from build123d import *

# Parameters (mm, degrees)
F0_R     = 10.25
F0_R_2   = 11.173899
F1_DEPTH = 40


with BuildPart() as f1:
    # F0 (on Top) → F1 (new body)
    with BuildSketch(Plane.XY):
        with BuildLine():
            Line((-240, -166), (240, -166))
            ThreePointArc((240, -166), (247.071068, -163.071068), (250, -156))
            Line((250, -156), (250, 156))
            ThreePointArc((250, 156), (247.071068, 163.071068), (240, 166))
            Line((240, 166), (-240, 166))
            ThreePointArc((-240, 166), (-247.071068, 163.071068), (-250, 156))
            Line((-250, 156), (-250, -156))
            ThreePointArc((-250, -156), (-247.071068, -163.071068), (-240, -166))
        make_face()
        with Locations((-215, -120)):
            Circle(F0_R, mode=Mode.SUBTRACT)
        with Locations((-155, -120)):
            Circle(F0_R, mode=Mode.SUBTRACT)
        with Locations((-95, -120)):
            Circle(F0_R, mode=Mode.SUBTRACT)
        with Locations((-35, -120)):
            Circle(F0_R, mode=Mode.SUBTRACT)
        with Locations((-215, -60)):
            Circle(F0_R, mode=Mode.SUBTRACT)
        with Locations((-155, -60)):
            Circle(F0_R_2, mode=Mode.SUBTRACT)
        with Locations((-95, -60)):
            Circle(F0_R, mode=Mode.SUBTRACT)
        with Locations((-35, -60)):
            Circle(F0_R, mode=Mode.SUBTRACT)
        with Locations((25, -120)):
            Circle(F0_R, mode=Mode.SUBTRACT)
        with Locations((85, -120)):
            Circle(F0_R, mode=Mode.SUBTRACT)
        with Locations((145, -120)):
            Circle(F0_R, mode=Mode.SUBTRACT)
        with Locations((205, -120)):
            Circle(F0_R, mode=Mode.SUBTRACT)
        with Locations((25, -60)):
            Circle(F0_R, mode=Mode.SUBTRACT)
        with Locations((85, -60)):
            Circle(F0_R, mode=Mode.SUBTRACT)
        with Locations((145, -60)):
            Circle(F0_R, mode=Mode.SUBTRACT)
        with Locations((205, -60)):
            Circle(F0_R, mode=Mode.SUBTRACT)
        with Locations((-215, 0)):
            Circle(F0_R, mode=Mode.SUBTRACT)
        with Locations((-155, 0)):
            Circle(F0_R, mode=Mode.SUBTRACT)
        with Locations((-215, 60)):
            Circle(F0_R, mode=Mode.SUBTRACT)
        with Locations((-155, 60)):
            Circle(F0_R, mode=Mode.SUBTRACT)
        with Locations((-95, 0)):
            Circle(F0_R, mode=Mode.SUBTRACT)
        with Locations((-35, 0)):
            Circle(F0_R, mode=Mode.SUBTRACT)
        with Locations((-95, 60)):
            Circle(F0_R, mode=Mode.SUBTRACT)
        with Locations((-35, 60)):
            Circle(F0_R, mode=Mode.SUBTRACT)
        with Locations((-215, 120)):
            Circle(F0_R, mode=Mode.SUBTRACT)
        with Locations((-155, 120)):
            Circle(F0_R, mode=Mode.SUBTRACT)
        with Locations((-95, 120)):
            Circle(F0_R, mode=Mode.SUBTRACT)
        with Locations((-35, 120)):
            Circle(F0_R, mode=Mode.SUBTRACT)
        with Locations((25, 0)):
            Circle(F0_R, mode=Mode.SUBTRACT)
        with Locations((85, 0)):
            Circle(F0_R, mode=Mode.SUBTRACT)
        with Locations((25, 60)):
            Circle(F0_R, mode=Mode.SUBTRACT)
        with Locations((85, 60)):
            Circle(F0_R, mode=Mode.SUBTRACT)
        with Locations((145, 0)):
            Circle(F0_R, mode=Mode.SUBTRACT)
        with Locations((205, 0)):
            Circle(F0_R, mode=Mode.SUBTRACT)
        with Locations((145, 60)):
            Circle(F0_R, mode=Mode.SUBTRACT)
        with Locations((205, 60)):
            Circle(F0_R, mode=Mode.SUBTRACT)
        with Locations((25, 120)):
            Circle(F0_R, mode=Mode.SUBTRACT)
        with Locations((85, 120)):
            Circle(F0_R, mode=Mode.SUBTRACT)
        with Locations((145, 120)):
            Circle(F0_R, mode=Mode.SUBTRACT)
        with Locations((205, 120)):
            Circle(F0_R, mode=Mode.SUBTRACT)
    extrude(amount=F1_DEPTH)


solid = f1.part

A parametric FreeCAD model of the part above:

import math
import FreeCAD as App
import Part
import Sketcher
from FreeCAD import Vector
Q = App.Units.Quantity

doc = App.newDocument("Part")
body = doc.addObject("PartDesign::Body", "Body")

sketch1 = body.newObject("Sketcher::SketchObject", "Sketch")
sketch1.AttachmentSupport = (doc.getObject("XY_Plane"), [""])
sketch1.MapMode = "FlatFace"
sketch1.addGeometry(Part.LineSegment(Vector(-240, -166, 0), Vector(240, -166, 0)), False)
sketch1.addGeometry(Part.ArcOfCircle(Part.Circle(Vector(240, -156, 0), Vector(0, 0, 1), 10), math.radians(-90), math.radians(0)), False)
sketch1.addGeometry(Part.LineSegment(Vector(250, -156, 0), Vector(250, 156, 0)), False)
sketch1.addGeometry(Part.ArcOfCircle(Part.Circle(Vector(240, 156, 0), Vector(0, 0, 1), 10), math.radians(0), math.radians(90)), False)
sketch1.addGeometry(Part.LineSegment(Vector(240, 166, 0), Vector(-240, 166, 0)), False)
sketch1.addGeometry(Part.ArcOfCircle(Part.Circle(Vector(-240, 156, 0), Vector(0, 0, 1), 10), math.radians(90), math.radians(180)), False)
sketch1.addGeometry(Part.LineSegment(Vector(-250, 156, 0), Vector(-250, -156, 0)), False)
sketch1.addGeometry(Part.ArcOfCircle(Part.Circle(Vector(-240, -156, 0), Vector(0, 0, 1), 10), math.radians(180), math.radians(270)), False)
sketch1.addGeometry(Part.Circle(Vector(-215, -120, 0), Vector(0, 0, 1), 10), False)
sketch1.addGeometry(Part.Circle(Vector(-155, -120, 0), Vector(0, 0, 1), 10), False)
sketch1.addGeometry(Part.Circle(Vector(-95, -120, 0), Vector(0, 0, 1), 10), False)
sketch1.addGeometry(Part.Circle(Vector(-35, -120, 0), Vector(0, 0, 1), 10), False)
sketch1.addGeometry(Part.Circle(Vector(-215, -60, 0), Vector(0, 0, 1), 10), False)
sketch1.addGeometry(Part.Circle(Vector(-155, -60, 0), Vector(0, 0, 1), 11), False)
sketch1.addGeometry(Part.Circle(Vector(-95, -60, 0), Vector(0, 0, 1), 10), False)
sketch1.addGeometry(Part.Circle(Vector(-35, -60, 0), Vector(0, 0, 1), 10), False)
sketch1.addGeometry(Part.Circle(Vector(25, -120, 0), Vector(0, 0, 1), 10), False)
sketch1.addGeometry(Part.Circle(Vector(85, -120, 0), Vector(0, 0, 1), 10), False)
sketch1.addGeometry(Part.Circle(Vector(145, -120, 0), Vector(0, 0, 1), 10), False)
sketch1.addGeometry(Part.Circle(Vector(205, -120, 0), Vector(0, 0, 1), 10), False)
sketch1.addGeometry(Part.Circle(Vector(25, -60, 0), Vector(0, 0, 1), 10), False)
sketch1.addGeometry(Part.Circle(Vector(85, -60, 0), Vector(0, 0, 1), 10), False)
sketch1.addGeometry(Part.Circle(Vector(145, -60, 0), Vector(0, 0, 1), 10), False)
sketch1.addGeometry(Part.Circle(Vector(205, -60, 0), Vector(0, 0, 1), 10), False)
sketch1.addGeometry(Part.Circle(Vector(-215, 0, 0), Vector(0, 0, 1), 10), False)
sketch1.addGeometry(Part.Circle(Vector(-155, 0, 0), Vector(0, 0, 1), 10), False)
sketch1.addGeometry(Part.Circle(Vector(-215, 60, 0), Vector(0, 0, 1), 10), False)
sketch1.addGeometry(Part.Circle(Vector(-155, 60, 0), Vector(0, 0, 1), 10), False)
sketch1.addGeometry(Part.Circle(Vector(-95, 0, 0), Vector(0, 0, 1), 10), False)
sketch1.addGeometry(Part.Circle(Vector(-35, 0, 0), Vector(0, 0, 1), 10), False)
sketch1.addGeometry(Part.Circle(Vector(-95, 60, 0), Vector(0, 0, 1), 10), False)
sketch1.addGeometry(Part.Circle(Vector(-35, 60, 0), Vector(0, 0, 1), 10), False)
sketch1.addGeometry(Part.Circle(Vector(-215, 120, 0), Vector(0, 0, 1), 10), False)
sketch1.addGeometry(Part.Circle(Vector(-155, 120, 0), Vector(0, 0, 1), 10), False)
sketch1.addGeometry(Part.Circle(Vector(-95, 120, 0), Vector(0, 0, 1), 10), False)
sketch1.addGeometry(Part.Circle(Vector(-35, 120, 0), Vector(0, 0, 1), 10), False)
sketch1.addGeometry(Part.Circle(Vector(25, 0, 0), Vector(0, 0, 1), 10), False)
sketch1.addGeometry(Part.Circle(Vector(85, 0, 0), Vector(0, 0, 1), 10), False)
sketch1.addGeometry(Part.Circle(Vector(25, 60, 0), Vector(0, 0, 1), 10), False)
sketch1.addGeometry(Part.Circle(Vector(85, 60, 0), Vector(0, 0, 1), 10), False)
sketch1.addGeometry(Part.Circle(Vector(145, 0, 0), Vector(0, 0, 1), 10), False)
sketch1.addGeometry(Part.Circle(Vector(205, 0, 0), Vector(0, 0, 1), 10), False)
sketch1.addGeometry(Part.Circle(Vector(145, 60, 0), Vector(0, 0, 1), 10), False)
sketch1.addGeometry(Part.Circle(Vector(205, 60, 0), Vector(0, 0, 1), 10), False)
sketch1.addGeometry(Part.Circle(Vector(25, 120, 0), Vector(0, 0, 1), 10), False)
sketch1.addGeometry(Part.Circle(Vector(85, 120, 0), Vector(0, 0, 1), 10), False)
sketch1.addGeometry(Part.Circle(Vector(145, 120, 0), Vector(0, 0, 1), 10), False)
sketch1.addGeometry(Part.Circle(Vector(205, 120, 0), Vector(0, 0, 1), 10), False)
sketch1.addConstraint(Sketcher.Constraint("Tangent", 0, 2, 1, 1))
sketch1.addConstraint(Sketcher.Constraint("Tangent", 1, 2, 2, 1))
sketch1.addConstraint(Sketcher.Constraint("Tangent", 2, 2, 3, 1))
sketch1.addConstraint(Sketcher.Constraint("Tangent", 3, 2, 4, 1))
sketch1.addConstraint(Sketcher.Constraint("Tangent", 4, 2, 5, 1))
sketch1.addConstraint(Sketcher.Constraint("Tangent", 5, 2, 6, 1))
sketch1.addConstraint(Sketcher.Constraint("Tangent", 6, 2, 7, 1))
sketch1.addConstraint(Sketcher.Constraint("Tangent", 7, 2, 0, 1))
sketch1.addConstraint(Sketcher.Constraint("Horizontal", 0))
sketch1.addConstraint(Sketcher.Constraint("Vertical", 2))
sketch1.addConstraint(Sketcher.Constraint("Horizontal", 4))
sketch1.addConstraint(Sketcher.Constraint("Vertical", 6))
sketch1.addConstraint(Sketcher.Constraint("Equal", 1, 3))
sketch1.addConstraint(Sketcher.Constraint("Equal", 3, 5))
sketch1.addConstraint(Sketcher.Constraint("Equal", 5, 7))
sketch1.addConstraint(Sketcher.Constraint("Equal", 8, 9))
sketch1.addConstraint(Sketcher.Constraint("Equal", 9, 10))
sketch1.addConstraint(Sketcher.Constraint("Equal", 10, 11))
sketch1.addConstraint(Sketcher.Constraint("Equal", 11, 12))
sketch1.addConstraint(Sketcher.Constraint("Equal", 12, 14))
sketch1.addConstraint(Sketcher.Constraint("Equal", 14, 15))
sketch1.addConstraint(Sketcher.Constraint("Equal", 15, 16))
sketch1.addConstraint(Sketcher.Constraint("Equal", 16, 17))
sketch1.addConstraint(Sketcher.Constraint("Equal", 17, 18))
sketch1.addConstraint(Sketcher.Constraint("Equal", 18, 19))
sketch1.addConstraint(Sketcher.Constraint("Equal", 19, 20))
sketch1.addConstraint(Sketcher.Constraint("Equal", 20, 21))
sketch1.addConstraint(Sketcher.Constraint("Equal", 21, 22))
sketch1.addConstraint(Sketcher.Constraint("Equal", 22, 23))
sketch1.addConstraint(Sketcher.Constraint("Equal", 23, 24))
sketch1.addConstraint(Sketcher.Constraint("Equal", 24, 25))
sketch1.addConstraint(Sketcher.Constraint("Equal", 25, 26))
sketch1.addConstraint(Sketcher.Constraint("Equal", 26, 27))
sketch1.addConstraint(Sketcher.Constraint("Equal", 27, 28))
sketch1.addConstraint(Sketcher.Constraint("Equal", 28, 29))
sketch1.addConstraint(Sketcher.Constraint("Equal", 29, 30))
sketch1.addConstraint(Sketcher.Constraint("Equal", 30, 31))
sketch1.addConstraint(Sketcher.Constraint("Equal", 31, 32))
sketch1.addConstraint(Sketcher.Constraint("Equal", 32, 33))
sketch1.addConstraint(Sketcher.Constraint("Equal", 33, 34))
sketch1.addConstraint(Sketcher.Constraint("Equal", 34, 35))
sketch1.addConstraint(Sketcher.Constraint("Equal", 35, 36))
sketch1.addConstraint(Sketcher.Constraint("Equal", 36, 37))
sketch1.addConstraint(Sketcher.Constraint("Equal", 37, 38))
sketch1.addConstraint(Sketcher.Constraint("Equal", 38, 39))
sketch1.addConstraint(Sketcher.Constraint("Equal", 39, 40))
sketch1.addConstraint(Sketcher.Constraint("Equal", 40, 41))
sketch1.addConstraint(Sketcher.Constraint("Equal", 41, 42))
sketch1.addConstraint(Sketcher.Constraint("Equal", 42, 43))
sketch1.addConstraint(Sketcher.Constraint("Equal", 43, 44))
sketch1.addConstraint(Sketcher.Constraint("Equal", 44, 45))
sketch1.addConstraint(Sketcher.Constraint("Equal", 45, 46))
sketch1.addConstraint(Sketcher.Constraint("Equal", 46, 47))
sketch1.addConstraint(Sketcher.Constraint("Symmetric", 1, 3, 5, 3, -1, 1))
sketch1.addConstraint(Sketcher.Constraint("Symmetric", 12, 3, 26, 3, -1))
sketch1.addConstraint(Sketcher.Constraint("Symmetric", 13, 3, 27, 3, -1))
sketch1.addConstraint(Sketcher.Constraint("Symmetric", 14, 3, 30, 3, -1))
sketch1.addConstraint(Sketcher.Constraint("Symmetric", 15, 3, 31, 3, -1))
sketch1.addConstraint(Sketcher.Constraint("Symmetric", 8, 3, 32, 3, -1))
sketch1.addConstraint(Sketcher.Constraint("Symmetric", 9, 3, 33, 3, -1))
sketch1.addConstraint(Sketcher.Constraint("Symmetric", 10, 3, 34, 3, -1))
sketch1.addConstraint(Sketcher.Constraint("Symmetric", 11, 3, 35, 3, -1))
sketch1.addConstraint(Sketcher.Constraint("Symmetric", 20, 3, 38, 3, -1))
sketch1.addConstraint(Sketcher.Constraint("Symmetric", 21, 3, 39, 3, -1))
sketch1.addConstraint(Sketcher.Constraint("Symmetric", 22, 3, 42, 3, -1))
sketch1.addConstraint(Sketcher.Constraint("Symmetric", 23, 3, 43, 3, -1))
sketch1.addConstraint(Sketcher.Constraint("Symmetric", 16, 3, 44, 3, -1))
sketch1.addConstraint(Sketcher.Constraint("Symmetric", 17, 3, 45, 3, -1))
sketch1.addConstraint(Sketcher.Constraint("Symmetric", 18, 3, 46, 3, -1))
sketch1.addConstraint(Sketcher.Constraint("Symmetric", 19, 3, 47, 3, -1))
sketch1.addConstraint(Sketcher.Constraint("PointOnObject", 24, 3, -1))
sketch1.addConstraint(Sketcher.Constraint("PointOnObject", 25, 3, -1))
sketch1.addConstraint(Sketcher.Constraint("PointOnObject", 28, 3, -1))
sketch1.addConstraint(Sketcher.Constraint("PointOnObject", 29, 3, -1))
sketch1.addConstraint(Sketcher.Constraint("PointOnObject", 36, 3, -1))
sketch1.addConstraint(Sketcher.Constraint("PointOnObject", 37, 3, -1))
sketch1.addConstraint(Sketcher.Constraint("PointOnObject", 40, 3, -1))
sketch1.addConstraint(Sketcher.Constraint("PointOnObject", 41, 3, -1))
sketch1.addConstraint(Sketcher.Constraint("Horizontal", 8, 3, 9, 3))
sketch1.addConstraint(Sketcher.Constraint("Horizontal", 9, 3, 10, 3))
sketch1.addConstraint(Sketcher.Constraint("Horizontal", 10, 3, 11, 3))
sketch1.addConstraint(Sketcher.Constraint("Horizontal", 12, 3, 13, 3))
sketch1.addConstraint(Sketcher.Constraint("Horizontal", 13, 3, 14, 3))
sketch1.addConstraint(Sketcher.Constraint("Horizontal", 14, 3, 15, 3))
sketch1.addConstraint(Sketcher.Constraint("Horizontal", 11, 3, 16, 3))
sketch1.addConstraint(Sketcher.Constraint("Horizontal", 16, 3, 17, 3))
sketch1.addConstraint(Sketcher.Constraint("Horizontal", 17, 3, 18, 3))
sketch1.addConstraint(Sketcher.Constraint("Horizontal", 18, 3, 19, 3))
sketch1.addConstraint(Sketcher.Constraint("Horizontal", 15, 3, 20, 3))
sketch1.addConstraint(Sketcher.Constraint("Horizontal", 20, 3, 21, 3))
sketch1.addConstraint(Sketcher.Constraint("Horizontal", 21, 3, 22, 3))
sketch1.addConstraint(Sketcher.Constraint("Horizontal", 22, 3, 23, 3))
sketch1.addConstraint(Sketcher.Constraint("Vertical", 8, 3, 12, 3))
sketch1.addConstraint(Sketcher.Constraint("Vertical", 9, 3, 13, 3))
sketch1.addConstraint(Sketcher.Constraint("Vertical", 10, 3, 14, 3))
sketch1.addConstraint(Sketcher.Constraint("Vertical", 11, 3, 15, 3))
sketch1.addConstraint(Sketcher.Constraint("Vertical", 16, 3, 20, 3))
sketch1.addConstraint(Sketcher.Constraint("Vertical", 17, 3, 21, 3))
sketch1.addConstraint(Sketcher.Constraint("Vertical", 18, 3, 22, 3))
sketch1.addConstraint(Sketcher.Constraint("Vertical", 19, 3, 23, 3))
sketch1.addConstraint(Sketcher.Constraint("Vertical", 12, 3, 24, 3))
sketch1.addConstraint(Sketcher.Constraint("Vertical", 13, 3, 25, 3))
sketch1.addConstraint(Sketcher.Constraint("Vertical", 14, 3, 28, 3))
sketch1.addConstraint(Sketcher.Constraint("Vertical", 15, 3, 29, 3))
sketch1.addConstraint(Sketcher.Constraint("Vertical", 20, 3, 36, 3))
sketch1.addConstraint(Sketcher.Constraint("Vertical", 21, 3, 37, 3))
sketch1.addConstraint(Sketcher.Constraint("Vertical", 22, 3, 40, 3))
sketch1.addConstraint(Sketcher.Constraint("Vertical", 23, 3, 41, 3))
sketch1.addConstraint(Sketcher.Constraint("Radius", 1, Q("9.999999 mm")))
sketch1.addConstraint(Sketcher.Constraint("Diameter", 8, Q("20.5 mm")))
sketch1.addConstraint(Sketcher.Constraint("DistanceX", 0, 1, 0, 2, Q("480 mm")))
sketch1.addConstraint(Sketcher.Constraint("DistanceY", 2, 1, 2, 2, Q("312 mm")))
sketch1.addConstraint(Sketcher.Constraint("DistanceX", 8, 3, -1, 1, Q("215 mm")))
sketch1.addConstraint(Sketcher.Constraint("DistanceY", 8, 3, -1, 1, Q("120 mm")))
sketch1.addConstraint(Sketcher.Constraint("DistanceX", 9, 3, -1, 1, Q("155 mm")))
sketch1.addConstraint(Sketcher.Constraint("DistanceX", 10, 3, -1, 1, Q("95 mm")))
sketch1.addConstraint(Sketcher.Constraint("DistanceX", 11, 3, -1, 1, Q("35 mm")))
sketch1.addConstraint(Sketcher.Constraint("DistanceY", 12, 3, -1, 1, Q("60 mm")))
sketch1.addConstraint(Sketcher.Constraint("DistanceX", -1, 1, 16, 3, Q("25 mm")))
sketch1.addConstraint(Sketcher.Constraint("DistanceX", -1, 1, 17, 3, Q("85 mm")))
sketch1.addConstraint(Sketcher.Constraint("DistanceX", -1, 1, 18, 3, Q("145 mm")))
sketch1.addConstraint(Sketcher.Constraint("DistanceX", -1, 1, 19, 3, Q("205 mm")))
sketch1.addConstraint(Sketcher.Constraint("Diameter", 13, Q("22.347798 mm")))
pad1 = body.newObject("PartDesign::Pad", "Pad")
pad1.Profile = sketch1
pad1.Length = 40

doc.recompute()
